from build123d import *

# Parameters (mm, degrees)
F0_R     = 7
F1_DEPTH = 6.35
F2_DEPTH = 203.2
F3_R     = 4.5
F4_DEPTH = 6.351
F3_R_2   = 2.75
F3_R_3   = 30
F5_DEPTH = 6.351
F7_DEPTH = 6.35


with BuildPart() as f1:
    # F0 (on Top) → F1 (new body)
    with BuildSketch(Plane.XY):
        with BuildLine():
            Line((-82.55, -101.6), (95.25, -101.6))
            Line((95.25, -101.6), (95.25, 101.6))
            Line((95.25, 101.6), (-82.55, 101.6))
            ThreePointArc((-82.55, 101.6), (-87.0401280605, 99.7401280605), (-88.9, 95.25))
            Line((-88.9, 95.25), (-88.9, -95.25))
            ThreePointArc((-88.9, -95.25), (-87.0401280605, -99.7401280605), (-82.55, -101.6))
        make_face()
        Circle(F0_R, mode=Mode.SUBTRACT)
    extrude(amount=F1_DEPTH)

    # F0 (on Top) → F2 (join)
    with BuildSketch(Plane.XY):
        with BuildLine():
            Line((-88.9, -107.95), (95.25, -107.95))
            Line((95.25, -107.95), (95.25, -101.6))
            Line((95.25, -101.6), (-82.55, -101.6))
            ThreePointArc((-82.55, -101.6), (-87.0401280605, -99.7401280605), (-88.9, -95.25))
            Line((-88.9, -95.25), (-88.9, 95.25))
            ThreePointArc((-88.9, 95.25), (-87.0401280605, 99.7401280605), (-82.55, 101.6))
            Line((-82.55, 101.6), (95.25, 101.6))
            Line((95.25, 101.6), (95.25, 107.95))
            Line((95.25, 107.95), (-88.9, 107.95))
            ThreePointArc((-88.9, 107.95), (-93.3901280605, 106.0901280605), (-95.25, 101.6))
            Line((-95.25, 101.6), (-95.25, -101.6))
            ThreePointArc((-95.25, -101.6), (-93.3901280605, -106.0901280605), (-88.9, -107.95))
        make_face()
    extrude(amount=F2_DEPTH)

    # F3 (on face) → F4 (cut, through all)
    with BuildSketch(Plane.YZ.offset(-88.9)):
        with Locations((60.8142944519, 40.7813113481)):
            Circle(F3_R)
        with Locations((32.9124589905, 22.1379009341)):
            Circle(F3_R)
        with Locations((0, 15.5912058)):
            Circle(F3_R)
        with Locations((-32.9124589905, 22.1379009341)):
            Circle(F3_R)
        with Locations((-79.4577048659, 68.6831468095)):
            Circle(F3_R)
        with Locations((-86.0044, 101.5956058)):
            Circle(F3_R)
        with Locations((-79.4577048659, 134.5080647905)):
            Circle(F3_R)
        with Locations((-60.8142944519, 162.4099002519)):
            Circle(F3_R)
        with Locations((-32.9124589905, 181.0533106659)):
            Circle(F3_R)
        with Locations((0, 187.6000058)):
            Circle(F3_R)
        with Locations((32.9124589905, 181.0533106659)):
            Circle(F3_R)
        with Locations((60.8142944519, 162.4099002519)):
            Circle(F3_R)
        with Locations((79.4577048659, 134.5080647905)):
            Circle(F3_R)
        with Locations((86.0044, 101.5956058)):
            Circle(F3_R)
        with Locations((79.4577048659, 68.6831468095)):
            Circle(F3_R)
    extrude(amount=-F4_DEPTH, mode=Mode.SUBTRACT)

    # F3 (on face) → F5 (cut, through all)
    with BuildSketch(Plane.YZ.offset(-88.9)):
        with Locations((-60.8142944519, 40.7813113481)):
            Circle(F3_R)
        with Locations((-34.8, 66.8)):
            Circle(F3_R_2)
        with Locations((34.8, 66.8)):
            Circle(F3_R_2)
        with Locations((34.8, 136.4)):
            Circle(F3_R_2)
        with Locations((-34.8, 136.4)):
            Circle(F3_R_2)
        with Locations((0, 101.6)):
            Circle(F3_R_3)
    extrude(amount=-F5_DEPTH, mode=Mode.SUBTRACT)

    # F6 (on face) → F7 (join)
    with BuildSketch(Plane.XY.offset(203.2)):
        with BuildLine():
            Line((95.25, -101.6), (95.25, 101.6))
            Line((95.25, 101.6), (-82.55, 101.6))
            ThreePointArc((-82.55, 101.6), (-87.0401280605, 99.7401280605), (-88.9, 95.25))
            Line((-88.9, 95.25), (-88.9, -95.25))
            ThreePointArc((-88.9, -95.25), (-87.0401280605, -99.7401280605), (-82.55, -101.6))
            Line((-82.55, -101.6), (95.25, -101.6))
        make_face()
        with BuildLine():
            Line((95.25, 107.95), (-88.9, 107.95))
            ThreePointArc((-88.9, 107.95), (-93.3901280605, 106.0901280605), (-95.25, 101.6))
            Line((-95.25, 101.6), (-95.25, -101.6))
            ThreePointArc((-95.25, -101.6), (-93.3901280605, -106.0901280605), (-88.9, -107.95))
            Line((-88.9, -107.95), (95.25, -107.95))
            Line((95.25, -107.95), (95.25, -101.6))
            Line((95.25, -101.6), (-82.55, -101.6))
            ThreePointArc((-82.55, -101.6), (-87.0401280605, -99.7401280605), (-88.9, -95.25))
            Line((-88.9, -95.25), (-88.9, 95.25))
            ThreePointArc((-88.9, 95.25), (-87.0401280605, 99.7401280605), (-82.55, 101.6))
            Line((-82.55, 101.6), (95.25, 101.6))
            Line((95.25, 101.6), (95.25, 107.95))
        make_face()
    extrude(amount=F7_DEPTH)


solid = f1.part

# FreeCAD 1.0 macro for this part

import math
import FreeCAD as App
import Part
import Sketcher

V = App.Vector
Q = App.Units.Quantity

doc = App.newDocument("Part")
body = doc.addObject("PartDesign::Body", "Body")

sketch1 = body.newObject("Sketcher::SketchObject", "Sketch")
sketch1.AttachmentSupport = (doc.getObject("XY_Plane"), [""])
sketch1.MapMode = "FlatFace"
sketch1.addGeometry([
    Part.LineSegment(V(-83, -102, 0), V(95, -102, 0)),
    Part.LineSegment(V(95, -102, 0), V(95, 102, 0)),
    Part.LineSegment(V(95, 102, 0), V(-83, 102, 0)),
    Part.ArcOfCircle(Part.Circle(V(-83, 95, 0), V(0, 0, 1), 6), math.radians(90), math.radians(180)),
    Part.LineSegment(V(-89, 95, 0), V(-89, -95, 0)),
    Part.ArcOfCircle(Part.Circle(V(-83, -95, 0), V(0, 0, 1), 6), math.radians(180), math.radians(270)),
    Part.Circle(V(0, 0, 0), V(0, 0, 1), 7),
], False)
sketch1.addConstraint([
    Sketcher.Constraint("Coincident", 0, 2, 1, 1),
    Sketcher.Constraint("Coincident", 1, 2, 2, 1),
    Sketcher.Constraint("Tangent", 2, 2, 3, 1),
    Sketcher.Constraint("Tangent", 3, 2, 4, 1),
    Sketcher.Constraint("Tangent", 4, 2, 5, 1),
    Sketcher.Constraint("Tangent", 5, 2, 0, 1),
    Sketcher.Constraint("Horizontal", 0),
    Sketcher.Constraint("Vertical", 1),
    Sketcher.Constraint("Horizontal", 2),
    Sketcher.Constraint("Vertical", 4),
    Sketcher.Constraint("Coincident", 6, 3, -1, 1),
    Sketcher.Constraint("Equal", 3, 5),
    Sketcher.Constraint("DistanceX", 0, 1, 0, 2, Q("7 in")),
    Sketcher.Constraint("DistanceY", 1, 1, 1, 2, Q("8 in")),
    Sketcher.Constraint("Radius", 3, Q("0.25 in")),
    Sketcher.Constraint("DistanceY", 0, 2, -1, 1, Q("4 in")),
    Sketcher.Constraint("DistanceX", 3, 2, -1, 1, Q("3.5 in")),
    Sketcher.Constraint("Diameter", 6, 14.0),
])
pad1 = body.newObject("PartDesign::Pad", "Pad")
pad1.Profile = sketch1
pad1.Length = Q("0.25 in")

sketch2 = body.newObject("Sketcher::SketchObject", "Sketch001")
sketch2.AttachmentSupport = (doc.getObject("XY_Plane"), [""])
sketch2.MapMode = "FlatFace"
sketch2.addGeometry([
    Part.LineSegment(V(-89, -108, 0), V(95, -108, 0)),
    Part.LineSegment(V(95, -108, 0), V(95, -102, 0)),
    Part.LineSegment(V(95, -102, 0), V(-83, -102, 0)),
    Part.ArcOfCircle(Part.Circle(V(-83, -95, 0), V(0, 0, 1), 6), math.radians(180), math.radians(270)),
    Part.LineSegment(V(-89, -95, 0), V(-89, 95, 0)),
    Part.ArcOfCircle(Part.Circle(V(-83, 95, 0), V(0, 0, 1), 6), math.radians(90), math.radians(180)),
    Part.LineSegment(V(-83, 102, 0), V(95, 102, 0)),
    Part.LineSegment(V(95, 102, 0), V(95, 108, 0)),
    Part.LineSegment(V(95, 108, 0), V(-89, 108, 0)),
    Part.ArcOfCircle(Part.Circle(V(-89, 102, 0), V(0, 0, 1), 6), math.radians(90), math.radians(180)),
    Part.LineSegment(V(-95, 102, 0), V(-95, -102, 0)),
    Part.ArcOfCircle(Part.Circle(V(-89, -102, 0), V(0, 0, 1), 6), math.radians(180), math.radians(270)),
], False)
sketch2.addConstraint([
    Sketcher.Constraint("Coincident", 0, 2, 1, 1),
    Sketcher.Constraint("Coincident", 1, 2, 2, 1),
    Sketcher.Constraint("Tangent", 2, 2, 3, 2),
    Sketcher.Constraint("Tangent", 3, 1, 4, 1),
    Sketcher.Constraint("Tangent", 4, 2, 5, 2),
    Sketcher.Constraint("Tangent", 5, 1, 6, 1),
    Sketcher.Constraint("Coincident", 6, 2, 7, 1),
    Sketcher.Constraint("Coincident", 7, 2, 8, 1),
    Sketcher.Constraint("Tangent", 8, 2, 9, 1),
    Sketcher.Constraint("Tangent", 9, 2, 10, 1),
    Sketcher.Constraint("Tangent", 10, 2, 11, 1),
    Sketcher.Constraint("Tangent", 11, 2, 0, 1),
    Sketcher.Constraint("Horizontal", 0),
    Sketcher.Constraint("Vertical", 1),
    Sketcher.Constraint("Horizontal", 2),
    Sketcher.Constraint("Vertical", 4),
    Sketcher.Constraint("Horizontal", 6),
    Sketcher.Constraint("Vertical", 7),
    Sketcher.Constraint("Horizontal", 8),
    Sketcher.Constraint("Vertical", 10),
    Sketcher.Constraint("Equal", 3, 5),
    Sketcher.Constraint("Equal", 5, 9),
    Sketcher.Constraint("Equal", 9, 11),
    Sketcher.Constraint("Symmetric", 1, 2, 9, 2, -1, 1),
    Sketcher.Constraint("Symmetric", 6, 2, 10, 2, -1, 1),
    Sketcher.Constraint("Horizontal", 11, 3, 1, 2),
    Sketcher.Constraint("Vertical", 11, 3, 3, 1),
    Sketcher.Constraint("DistanceX", 2, 2, 2, 1, Q("7 in")),
    Sketcher.Constraint("DistanceY", 10, 2, 10, 1, Q("8 in")),
    Sketcher.Constraint("Radius", 3, Q("0.25 in")),
])
pad2 = body.newObject("PartDesign::Pad", "Pad001")
pad2.Profile = sketch2
pad2.Length = Q("8 in")

sketch3 = body.newObject("Sketcher::SketchObject", "Sketch002")
sketch3.AttachmentSupport = (doc.getObject("YZ_Plane"), [""])
sketch3.MapMode = "FlatFace"
sketch3.AttachmentOffset = App.Placement(V(0, 0, -3.5 * 25.4), App.Rotation())
sketch3.addGeometry([
    Part.Circle(V(60.8, 40.8, 0), V(0, 0, 1), 4.5),
    Part.Circle(V(32.9, 22.1, 0), V(0, 0, 1), 4.5),
    Part.Circle(V(0, 15.6, 0), V(0, 0, 1), 4.5),
    Part.Circle(V(-32.9, 22.1, 0), V(0, 0, 1), 4.5),
    Part.Circle(V(-79.5, 68.7, 0), V(0, 0, 1), 4.5),
    Part.Circle(V(-86, 101.6, 0), V(0, 0, 1), 4.5),
    Part.Circle(V(-79.5, 134.5, 0), V(0, 0, 1), 4.5),
    Part.Circle(V(-60.8, 162.4, 0), V(0, 0, 1), 4.5),
    Part.Circle(V(-32.9, 181.1, 0), V(0, 0, 1), 4.5),
    Part.Circle(V(0, 187.6, 0), V(0, 0, 1), 4.5),
    Part.Circle(V(32.9, 181.1, 0), V(0, 0, 1), 4.5),
    Part.Circle(V(60.8, 162.4, 0), V(0, 0, 1), 4.5),
    Part.Circle(V(79.5, 134.5, 0), V(0, 0, 1), 4.5),
    Part.Circle(V(86, 101.6, 0), V(0, 0, 1), 4.5),
    Part.Circle(V(79.5, 68.7, 0), V(0, 0, 1), 4.5),
], False)
sketch3.addConstraint([
    Sketcher.Constraint("Equal", 0, 1),
    Sketcher.Constraint("Equal", 1, 2),
    Sketcher.Constraint("Equal", 2, 3),
    Sketcher.Constraint("Equal", 3, 4),
    Sketcher.Constraint("Equal", 4, 5),
    Sketcher.Constraint("Equal", 5, 6),
    Sketcher.Constraint("Equal", 6, 7),
    Sketcher.Constraint("Equal", 7, 8),
    Sketcher.Constraint("Equal", 8, 9),
    Sketcher.Constraint("Equal", 9, 10),
    Sketcher.Constraint("Equal", 10, 11),
    Sketcher.Constraint("Equal", 11, 12),
    Sketcher.Constraint("Equal", 12, 13),
    Sketcher.Constraint("Equal", 13, 14),
    Sketcher.Constraint("Symmetric", 1, 3, 3, 3, -2),
    Sketcher.Constraint("Symmetric", 8, 3, 10, 3, -2),
    Sketcher.Constraint("Symmetric", 7, 3, 11, 3, -2),
    Sketcher.Constraint("Symmetric", 6, 3, 12, 3, -2),
    Sketcher.Constraint("Symmetric", 5, 3, 13, 3, -2),
    Sketcher.Constraint("Symmetric", 4, 3, 14, 3, -2),
    Sketcher.Constraint("PointOnObject", 2, 3, -2),
    Sketcher.Constraint("PointOnObject", 9, 3, -2),
    Sketcher.Constraint("Vertical", 4, 3, 6, 3),
    Sketcher.Constraint("Vertical", 3, 3, 8, 3),
    Sketcher.Constraint("Vertical", 0, 3, 11, 3),
    Sketcher.Constraint("Diameter", 0, 9.0),
    Sketcher.Constraint("DistanceX", 5, 3, -1, 1, Q("3.386 in")),
    Sketcher.Constraint("DistanceY", 2, 3, 5, 3, Q("3.386 in")),
    Sketcher.Constraint("DistanceY", 5, 3, 9, 3, Q("3.386 in")),
    Sketcher.Constraint("DistanceY", -1, 1, 1, 3, 22.137901),
    Sketcher.Constraint("DistanceY", -1, 1, 7, 3, 162.4099),
    Sketcher.Constraint("DistanceX", 4, 3, 0, 3, 140.271999),
    Sketcher.Constraint("DistanceY", -1, 1, 0, 3, 40.781311),
    Sketcher.Constraint("DistanceX", -1, 1, 1, 3, 32.912459),
    Sketcher.Constraint("DistanceY", -1, 1, 8, 3, 181.053311),
    Sketcher.Constraint("DistanceY", 2, 3, 4, 3, 53.091941),
    Sketcher.Constraint("DistanceY", 5, 3, 6, 3, 32.912459),
    Sketcher.Constraint("DistanceX", 6, 3, 7, 3, 18.64341),
    Sketcher.Constraint("DistanceY", -1, 1, 2, 3, 15.591206),
])
pocket1 = body.newObject("PartDesign::Pocket", "Pocket")
pocket1.Profile = sketch3
pocket1.Type = "ThroughAll"

sketch4 = body.newObject("Sketcher::SketchObject", "Sketch003")
sketch4.AttachmentSupport = (doc.getObject("YZ_Plane"), [""])
sketch4.MapMode = "FlatFace"
sketch4.AttachmentOffset = App.Placement(V(0, 0, -3.5 * 25.4), App.Rotation())
sketch4.addGeometry([
    Part.Circle(V(-60.8, 40.8, 0), V(0, 0, 1), 4.5),
    Part.Circle(V(-34.8, 66.8, 0), V(0, 0, 1), 2.8),
    Part.Circle(V(34.8, 66.8, 0), V(0, 0, 1), 2.8),
    Part.Circle(V(34.8, 136.4, 0), V(0, 0, 1), 2.8),
    Part.Circle(V(-34.8, 136.4, 0), V(0, 0, 1), 2.8),
    Part.Circle(V(0, 101.6, 0), V(0, 0, 1), 30),
], False)
sketch4.addConstraint([
    Sketcher.Constraint("Equal", 1, 2),
    Sketcher.Constraint("Equal", 2, 3),
    Sketcher.Constraint("Equal", 3, 4),
    Sketcher.Constraint("Symmetric", 1, 3, 2, 3, -2),
    Sketcher.Constraint("Symmetric", 3, 3, 4, 3, -2),
    Sketcher.Constraint("PointOnObject", 5, 3, -2),
    Sketcher.Constraint("Vertical", 2, 3, 3, 3),
    Sketcher.Constraint("DistanceY", -1, 1, 5, 3, Q("4 in")),
    Sketcher.Constraint("Diameter", 0, 9.0),
    Sketcher.Constraint("Diameter", 1, 5.5),
    Sketcher.Constraint("Diameter", 5, 60.0),
    Sketcher.Constraint("DistanceX", 1, 3, -1, 1, 34.8),
    Sketcher.Constraint("DistanceY", -1, 1, 1, 3, 66.8),
    Sketcher.Constraint("DistanceY", -1, 1, 3, 3, 136.4),
    Sketcher.Constraint("DistanceY", -1, 1, 0, 3, 40.781311),
    Sketcher.Constraint("DistanceX", 0, 3, -1, 1, 60.814294),
])
pocket2 = body.newObject("PartDesign::Pocket", "Pocket001")
pocket2.Profile = sketch4
pocket2.Type = "ThroughAll"

sketch5 = body.newObject("Sketcher::SketchObject", "Sketch004")
sketch5.AttachmentSupport = (doc.getObject("XY_Plane"), [""])
sketch5.MapMode = "FlatFace"
sketch5.AttachmentOffset = App.Placement(V(0, 0, 8 * 25.4), App.Rotation())
sketch5.addGeometry([
    Part.LineSegment(V(95, 108, 0), V(-89, 108, 0)),
    Part.ArcOfCircle(Part.Circle(V(-89, 102, 0), V(0, 0, 1), 6), math.radians(90), math.radians(180)),
    Part.LineSegment(V(-95, 102, 0), V(-95, -102, 0)),
    Part.ArcOfCircle(Part.Circle(V(-89, -102, 0), V(0, 0, 1), 6), math.radians(180), math.radians(270)),
    Part.LineSegment(V(-89, -108, 0), V(95, -108, 0)),
    Part.LineSegment(V(95, -108, 0), V(95, 108, 0)),
], False)
sketch5.addConstraint([
    Sketcher.Constraint("Tangent", 0, 2, 1, 1),
    Sketcher.Constraint("Tangent", 1, 2, 2, 1),
    Sketcher.Constraint("Tangent", 2, 2, 3, 1),
    Sketcher.Constraint("Tangent", 3, 2, 4, 1),
    Sketcher.Constraint("Coincident", 4, 2, 5, 1),
    Sketcher.Constraint("Coincident", 5, 2, 0, 1),
    Sketcher.Constraint("Horizontal", 0),
    Sketcher.Constraint("Vertical", 2),
    Sketcher.Constraint("Horizontal", 4),
    Sketcher.Constraint("Vertical", 5),
    Sketcher.Constraint("Equal", 1, 3),
    Sketcher.Constraint("DistanceY", 2, 2, 2, 1, Q("8 in")),
    Sketcher.Constraint("Radius", 1, Q("0.25 in")),
    Sketcher.Constraint("DistanceY", -1, 1, 1, 3, Q("4 in")),
    Sketcher.Constraint("DistanceX", 0, 2, 0, 1, Q("7.25 in")),
    Sketcher.Constraint("DistanceX", 1, 3, -1, 1, Q("3.5 in")),
])
pad3 = body.newObject("PartDesign::Pad", "Pad002")
pad3.Profile = sketch5
pad3.Length = Q("0.25 in")

doc.recompute()
